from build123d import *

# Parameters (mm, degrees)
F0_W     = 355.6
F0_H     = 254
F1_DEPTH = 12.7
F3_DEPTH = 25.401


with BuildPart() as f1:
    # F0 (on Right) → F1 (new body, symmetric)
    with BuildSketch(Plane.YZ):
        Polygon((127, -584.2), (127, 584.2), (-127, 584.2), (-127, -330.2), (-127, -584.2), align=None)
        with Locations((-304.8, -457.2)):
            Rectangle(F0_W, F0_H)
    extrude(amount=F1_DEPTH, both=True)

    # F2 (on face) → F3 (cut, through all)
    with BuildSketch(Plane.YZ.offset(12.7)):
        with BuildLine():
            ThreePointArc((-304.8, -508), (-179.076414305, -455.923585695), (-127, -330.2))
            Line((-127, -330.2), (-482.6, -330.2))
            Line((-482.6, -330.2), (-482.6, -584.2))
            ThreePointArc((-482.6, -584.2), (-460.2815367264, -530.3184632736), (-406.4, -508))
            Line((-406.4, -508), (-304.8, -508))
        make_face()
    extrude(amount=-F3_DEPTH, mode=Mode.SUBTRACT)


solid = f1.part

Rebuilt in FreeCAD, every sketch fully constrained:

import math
import FreeCAD as App
import Part
import Sketcher
from FreeCAD import Vector
Q = App.Units.Quantity


def add_polygon(sketch, points):
    """Adds a closed chain of lines whose ends are joined by coincident constraints."""
    first, n = sketch.GeometryCount, len(points)
    for a, b in zip(points, points[1:] + points[:1]):
        sketch.addGeometry(Part.LineSegment(App.Vector(*a, 0), App.Vector(*b, 0)), False)
    for i in range(n):
        sketch.addConstraint(Sketcher.Constraint("Coincident", first + i, 2, first + (i + 1) % n, 1))

doc = App.newDocument("Part")
body = doc.addObject("PartDesign::Body", "Body")

# Sketch on YZ plane
sketch1 = body.newObject("Sketcher::SketchObject", "Sketch")
sketch1.AttachmentSupport = (doc.getObject("YZ_Plane"), [""])
sketch1.MapMode = "FlatFace"
add_polygon(sketch1, [(127, -584), (127, 584), (-127, 584), (-127, -330), (-483, -330), (-483, -584)])  # lines 0-5
sketch1.addConstraint(Sketcher.Constraint("Vertical", 0))
sketch1.addConstraint(Sketcher.Constraint("Horizontal", 1))
sketch1.addConstraint(Sketcher.Constraint("Vertical", 2))
sketch1.addConstraint(Sketcher.Constraint("Horizontal", 3))
sketch1.addConstraint(Sketcher.Constraint("Vertical", 4))
sketch1.addConstraint(Sketcher.Constraint("Horizontal", 5))
sketch1.addConstraint(Sketcher.Constraint("Symmetric", 1, 2, 5, 2, -1, 1))
sketch1.addConstraint(Sketcher.Constraint("Equal", 1, 4))
sketch1.addConstraint(Sketcher.Constraint("DistanceX", 1, 2, 1, 1, Q("10 in")))
sketch1.addConstraint(Sketcher.Constraint("DistanceX", 3, 2, 3, 1, Q("14 in")))
sketch1.addConstraint(Sketcher.Constraint("DistanceY", 0, 1, 0, 2, Q("46 in")))
pad1 = body.newObject("PartDesign::Pad", "Pad")
pad1.Profile = sketch1
pad1.Length = Q("1 in")
pad1.Midplane = True

# Sketch on YZ plane
sketch2 = body.newObject("Sketcher::SketchObject", "Sketch001")
sketch2.AttachmentSupport = (doc.getObject("YZ_Plane"), [""])
sketch2.MapMode = "FlatFace"
sketch2.AttachmentOffset = App.Placement(Vector(0, 0, 0.5 * 25.4), App.Rotation())
sketch2.addGeometry(Part.ArcOfCircle(Part.Circle(Vector(-305, -330, 0), Vector(0, 0, 1), 178), math.radians(-90), math.radians(0)), False)
sketch2.addGeometry(Part.LineSegment(Vector(-127, -330, 0), Vector(-483, -330, 0)), False)
sketch2.addGeometry(Part.LineSegment(Vector(-483, -330, 0), Vector(-483, -584, 0)), False)
sketch2.addGeometry(Part.ArcOfCircle(Part.Circle(Vector(-406, -584, 0), Vector(0, 0, 1), 76), math.radians(90), math.radians(180)), False)
sketch2.addGeometry(Part.LineSegment(Vector(-406, -508, 0), Vector(-305, -508, 0)), False)
sketch2.addConstraint(Sketcher.Constraint("Coincident", 0, 2, 1, 1))
sketch2.addConstraint(Sketcher.Constraint("Coincident", 1, 2, 2, 1))
sketch2.addConstraint(Sketcher.Constraint("Tangent", 2, 2, 3, 2))
sketch2.addConstraint(Sketcher.Constraint("Tangent", 3, 1, 4, 1))
sketch2.addConstraint(Sketcher.Constraint("Tangent", 4, 2, 0, 1))
sketch2.addConstraint(Sketcher.Constraint("Horizontal", 1))
sketch2.addConstraint(Sketcher.Constraint("Vertical", 2))
sketch2.addConstraint(Sketcher.Constraint("Horizontal", 4))
sketch2.addConstraint(Sketcher.Constraint("Radius", 0, Q("7 in")))
sketch2.addConstraint(Sketcher.Constraint("Radius", 3, Q("3 in")))
sketch2.addConstraint(Sketcher.Constraint("DistanceX", 1, 2, 1, 1, Q("14 in")))
sketch2.addConstraint(Sketcher.Constraint("DistanceY", 2, 2, 2, 1, Q("10 in")))
sketch2.addConstraint(Sketcher.Constraint("DistanceX", 0, 3, -1, 1, Q("12 in")))
sketch2.addConstraint(Sketcher.Constraint("DistanceY", 0, 3, -1, 1, Q("13 in")))
pocket1 = body.newObject("PartDesign::Pocket", "Pocket")
pocket1.Profile = sketch2
pocket1.Type = "ThroughAll"

doc.recompute()
